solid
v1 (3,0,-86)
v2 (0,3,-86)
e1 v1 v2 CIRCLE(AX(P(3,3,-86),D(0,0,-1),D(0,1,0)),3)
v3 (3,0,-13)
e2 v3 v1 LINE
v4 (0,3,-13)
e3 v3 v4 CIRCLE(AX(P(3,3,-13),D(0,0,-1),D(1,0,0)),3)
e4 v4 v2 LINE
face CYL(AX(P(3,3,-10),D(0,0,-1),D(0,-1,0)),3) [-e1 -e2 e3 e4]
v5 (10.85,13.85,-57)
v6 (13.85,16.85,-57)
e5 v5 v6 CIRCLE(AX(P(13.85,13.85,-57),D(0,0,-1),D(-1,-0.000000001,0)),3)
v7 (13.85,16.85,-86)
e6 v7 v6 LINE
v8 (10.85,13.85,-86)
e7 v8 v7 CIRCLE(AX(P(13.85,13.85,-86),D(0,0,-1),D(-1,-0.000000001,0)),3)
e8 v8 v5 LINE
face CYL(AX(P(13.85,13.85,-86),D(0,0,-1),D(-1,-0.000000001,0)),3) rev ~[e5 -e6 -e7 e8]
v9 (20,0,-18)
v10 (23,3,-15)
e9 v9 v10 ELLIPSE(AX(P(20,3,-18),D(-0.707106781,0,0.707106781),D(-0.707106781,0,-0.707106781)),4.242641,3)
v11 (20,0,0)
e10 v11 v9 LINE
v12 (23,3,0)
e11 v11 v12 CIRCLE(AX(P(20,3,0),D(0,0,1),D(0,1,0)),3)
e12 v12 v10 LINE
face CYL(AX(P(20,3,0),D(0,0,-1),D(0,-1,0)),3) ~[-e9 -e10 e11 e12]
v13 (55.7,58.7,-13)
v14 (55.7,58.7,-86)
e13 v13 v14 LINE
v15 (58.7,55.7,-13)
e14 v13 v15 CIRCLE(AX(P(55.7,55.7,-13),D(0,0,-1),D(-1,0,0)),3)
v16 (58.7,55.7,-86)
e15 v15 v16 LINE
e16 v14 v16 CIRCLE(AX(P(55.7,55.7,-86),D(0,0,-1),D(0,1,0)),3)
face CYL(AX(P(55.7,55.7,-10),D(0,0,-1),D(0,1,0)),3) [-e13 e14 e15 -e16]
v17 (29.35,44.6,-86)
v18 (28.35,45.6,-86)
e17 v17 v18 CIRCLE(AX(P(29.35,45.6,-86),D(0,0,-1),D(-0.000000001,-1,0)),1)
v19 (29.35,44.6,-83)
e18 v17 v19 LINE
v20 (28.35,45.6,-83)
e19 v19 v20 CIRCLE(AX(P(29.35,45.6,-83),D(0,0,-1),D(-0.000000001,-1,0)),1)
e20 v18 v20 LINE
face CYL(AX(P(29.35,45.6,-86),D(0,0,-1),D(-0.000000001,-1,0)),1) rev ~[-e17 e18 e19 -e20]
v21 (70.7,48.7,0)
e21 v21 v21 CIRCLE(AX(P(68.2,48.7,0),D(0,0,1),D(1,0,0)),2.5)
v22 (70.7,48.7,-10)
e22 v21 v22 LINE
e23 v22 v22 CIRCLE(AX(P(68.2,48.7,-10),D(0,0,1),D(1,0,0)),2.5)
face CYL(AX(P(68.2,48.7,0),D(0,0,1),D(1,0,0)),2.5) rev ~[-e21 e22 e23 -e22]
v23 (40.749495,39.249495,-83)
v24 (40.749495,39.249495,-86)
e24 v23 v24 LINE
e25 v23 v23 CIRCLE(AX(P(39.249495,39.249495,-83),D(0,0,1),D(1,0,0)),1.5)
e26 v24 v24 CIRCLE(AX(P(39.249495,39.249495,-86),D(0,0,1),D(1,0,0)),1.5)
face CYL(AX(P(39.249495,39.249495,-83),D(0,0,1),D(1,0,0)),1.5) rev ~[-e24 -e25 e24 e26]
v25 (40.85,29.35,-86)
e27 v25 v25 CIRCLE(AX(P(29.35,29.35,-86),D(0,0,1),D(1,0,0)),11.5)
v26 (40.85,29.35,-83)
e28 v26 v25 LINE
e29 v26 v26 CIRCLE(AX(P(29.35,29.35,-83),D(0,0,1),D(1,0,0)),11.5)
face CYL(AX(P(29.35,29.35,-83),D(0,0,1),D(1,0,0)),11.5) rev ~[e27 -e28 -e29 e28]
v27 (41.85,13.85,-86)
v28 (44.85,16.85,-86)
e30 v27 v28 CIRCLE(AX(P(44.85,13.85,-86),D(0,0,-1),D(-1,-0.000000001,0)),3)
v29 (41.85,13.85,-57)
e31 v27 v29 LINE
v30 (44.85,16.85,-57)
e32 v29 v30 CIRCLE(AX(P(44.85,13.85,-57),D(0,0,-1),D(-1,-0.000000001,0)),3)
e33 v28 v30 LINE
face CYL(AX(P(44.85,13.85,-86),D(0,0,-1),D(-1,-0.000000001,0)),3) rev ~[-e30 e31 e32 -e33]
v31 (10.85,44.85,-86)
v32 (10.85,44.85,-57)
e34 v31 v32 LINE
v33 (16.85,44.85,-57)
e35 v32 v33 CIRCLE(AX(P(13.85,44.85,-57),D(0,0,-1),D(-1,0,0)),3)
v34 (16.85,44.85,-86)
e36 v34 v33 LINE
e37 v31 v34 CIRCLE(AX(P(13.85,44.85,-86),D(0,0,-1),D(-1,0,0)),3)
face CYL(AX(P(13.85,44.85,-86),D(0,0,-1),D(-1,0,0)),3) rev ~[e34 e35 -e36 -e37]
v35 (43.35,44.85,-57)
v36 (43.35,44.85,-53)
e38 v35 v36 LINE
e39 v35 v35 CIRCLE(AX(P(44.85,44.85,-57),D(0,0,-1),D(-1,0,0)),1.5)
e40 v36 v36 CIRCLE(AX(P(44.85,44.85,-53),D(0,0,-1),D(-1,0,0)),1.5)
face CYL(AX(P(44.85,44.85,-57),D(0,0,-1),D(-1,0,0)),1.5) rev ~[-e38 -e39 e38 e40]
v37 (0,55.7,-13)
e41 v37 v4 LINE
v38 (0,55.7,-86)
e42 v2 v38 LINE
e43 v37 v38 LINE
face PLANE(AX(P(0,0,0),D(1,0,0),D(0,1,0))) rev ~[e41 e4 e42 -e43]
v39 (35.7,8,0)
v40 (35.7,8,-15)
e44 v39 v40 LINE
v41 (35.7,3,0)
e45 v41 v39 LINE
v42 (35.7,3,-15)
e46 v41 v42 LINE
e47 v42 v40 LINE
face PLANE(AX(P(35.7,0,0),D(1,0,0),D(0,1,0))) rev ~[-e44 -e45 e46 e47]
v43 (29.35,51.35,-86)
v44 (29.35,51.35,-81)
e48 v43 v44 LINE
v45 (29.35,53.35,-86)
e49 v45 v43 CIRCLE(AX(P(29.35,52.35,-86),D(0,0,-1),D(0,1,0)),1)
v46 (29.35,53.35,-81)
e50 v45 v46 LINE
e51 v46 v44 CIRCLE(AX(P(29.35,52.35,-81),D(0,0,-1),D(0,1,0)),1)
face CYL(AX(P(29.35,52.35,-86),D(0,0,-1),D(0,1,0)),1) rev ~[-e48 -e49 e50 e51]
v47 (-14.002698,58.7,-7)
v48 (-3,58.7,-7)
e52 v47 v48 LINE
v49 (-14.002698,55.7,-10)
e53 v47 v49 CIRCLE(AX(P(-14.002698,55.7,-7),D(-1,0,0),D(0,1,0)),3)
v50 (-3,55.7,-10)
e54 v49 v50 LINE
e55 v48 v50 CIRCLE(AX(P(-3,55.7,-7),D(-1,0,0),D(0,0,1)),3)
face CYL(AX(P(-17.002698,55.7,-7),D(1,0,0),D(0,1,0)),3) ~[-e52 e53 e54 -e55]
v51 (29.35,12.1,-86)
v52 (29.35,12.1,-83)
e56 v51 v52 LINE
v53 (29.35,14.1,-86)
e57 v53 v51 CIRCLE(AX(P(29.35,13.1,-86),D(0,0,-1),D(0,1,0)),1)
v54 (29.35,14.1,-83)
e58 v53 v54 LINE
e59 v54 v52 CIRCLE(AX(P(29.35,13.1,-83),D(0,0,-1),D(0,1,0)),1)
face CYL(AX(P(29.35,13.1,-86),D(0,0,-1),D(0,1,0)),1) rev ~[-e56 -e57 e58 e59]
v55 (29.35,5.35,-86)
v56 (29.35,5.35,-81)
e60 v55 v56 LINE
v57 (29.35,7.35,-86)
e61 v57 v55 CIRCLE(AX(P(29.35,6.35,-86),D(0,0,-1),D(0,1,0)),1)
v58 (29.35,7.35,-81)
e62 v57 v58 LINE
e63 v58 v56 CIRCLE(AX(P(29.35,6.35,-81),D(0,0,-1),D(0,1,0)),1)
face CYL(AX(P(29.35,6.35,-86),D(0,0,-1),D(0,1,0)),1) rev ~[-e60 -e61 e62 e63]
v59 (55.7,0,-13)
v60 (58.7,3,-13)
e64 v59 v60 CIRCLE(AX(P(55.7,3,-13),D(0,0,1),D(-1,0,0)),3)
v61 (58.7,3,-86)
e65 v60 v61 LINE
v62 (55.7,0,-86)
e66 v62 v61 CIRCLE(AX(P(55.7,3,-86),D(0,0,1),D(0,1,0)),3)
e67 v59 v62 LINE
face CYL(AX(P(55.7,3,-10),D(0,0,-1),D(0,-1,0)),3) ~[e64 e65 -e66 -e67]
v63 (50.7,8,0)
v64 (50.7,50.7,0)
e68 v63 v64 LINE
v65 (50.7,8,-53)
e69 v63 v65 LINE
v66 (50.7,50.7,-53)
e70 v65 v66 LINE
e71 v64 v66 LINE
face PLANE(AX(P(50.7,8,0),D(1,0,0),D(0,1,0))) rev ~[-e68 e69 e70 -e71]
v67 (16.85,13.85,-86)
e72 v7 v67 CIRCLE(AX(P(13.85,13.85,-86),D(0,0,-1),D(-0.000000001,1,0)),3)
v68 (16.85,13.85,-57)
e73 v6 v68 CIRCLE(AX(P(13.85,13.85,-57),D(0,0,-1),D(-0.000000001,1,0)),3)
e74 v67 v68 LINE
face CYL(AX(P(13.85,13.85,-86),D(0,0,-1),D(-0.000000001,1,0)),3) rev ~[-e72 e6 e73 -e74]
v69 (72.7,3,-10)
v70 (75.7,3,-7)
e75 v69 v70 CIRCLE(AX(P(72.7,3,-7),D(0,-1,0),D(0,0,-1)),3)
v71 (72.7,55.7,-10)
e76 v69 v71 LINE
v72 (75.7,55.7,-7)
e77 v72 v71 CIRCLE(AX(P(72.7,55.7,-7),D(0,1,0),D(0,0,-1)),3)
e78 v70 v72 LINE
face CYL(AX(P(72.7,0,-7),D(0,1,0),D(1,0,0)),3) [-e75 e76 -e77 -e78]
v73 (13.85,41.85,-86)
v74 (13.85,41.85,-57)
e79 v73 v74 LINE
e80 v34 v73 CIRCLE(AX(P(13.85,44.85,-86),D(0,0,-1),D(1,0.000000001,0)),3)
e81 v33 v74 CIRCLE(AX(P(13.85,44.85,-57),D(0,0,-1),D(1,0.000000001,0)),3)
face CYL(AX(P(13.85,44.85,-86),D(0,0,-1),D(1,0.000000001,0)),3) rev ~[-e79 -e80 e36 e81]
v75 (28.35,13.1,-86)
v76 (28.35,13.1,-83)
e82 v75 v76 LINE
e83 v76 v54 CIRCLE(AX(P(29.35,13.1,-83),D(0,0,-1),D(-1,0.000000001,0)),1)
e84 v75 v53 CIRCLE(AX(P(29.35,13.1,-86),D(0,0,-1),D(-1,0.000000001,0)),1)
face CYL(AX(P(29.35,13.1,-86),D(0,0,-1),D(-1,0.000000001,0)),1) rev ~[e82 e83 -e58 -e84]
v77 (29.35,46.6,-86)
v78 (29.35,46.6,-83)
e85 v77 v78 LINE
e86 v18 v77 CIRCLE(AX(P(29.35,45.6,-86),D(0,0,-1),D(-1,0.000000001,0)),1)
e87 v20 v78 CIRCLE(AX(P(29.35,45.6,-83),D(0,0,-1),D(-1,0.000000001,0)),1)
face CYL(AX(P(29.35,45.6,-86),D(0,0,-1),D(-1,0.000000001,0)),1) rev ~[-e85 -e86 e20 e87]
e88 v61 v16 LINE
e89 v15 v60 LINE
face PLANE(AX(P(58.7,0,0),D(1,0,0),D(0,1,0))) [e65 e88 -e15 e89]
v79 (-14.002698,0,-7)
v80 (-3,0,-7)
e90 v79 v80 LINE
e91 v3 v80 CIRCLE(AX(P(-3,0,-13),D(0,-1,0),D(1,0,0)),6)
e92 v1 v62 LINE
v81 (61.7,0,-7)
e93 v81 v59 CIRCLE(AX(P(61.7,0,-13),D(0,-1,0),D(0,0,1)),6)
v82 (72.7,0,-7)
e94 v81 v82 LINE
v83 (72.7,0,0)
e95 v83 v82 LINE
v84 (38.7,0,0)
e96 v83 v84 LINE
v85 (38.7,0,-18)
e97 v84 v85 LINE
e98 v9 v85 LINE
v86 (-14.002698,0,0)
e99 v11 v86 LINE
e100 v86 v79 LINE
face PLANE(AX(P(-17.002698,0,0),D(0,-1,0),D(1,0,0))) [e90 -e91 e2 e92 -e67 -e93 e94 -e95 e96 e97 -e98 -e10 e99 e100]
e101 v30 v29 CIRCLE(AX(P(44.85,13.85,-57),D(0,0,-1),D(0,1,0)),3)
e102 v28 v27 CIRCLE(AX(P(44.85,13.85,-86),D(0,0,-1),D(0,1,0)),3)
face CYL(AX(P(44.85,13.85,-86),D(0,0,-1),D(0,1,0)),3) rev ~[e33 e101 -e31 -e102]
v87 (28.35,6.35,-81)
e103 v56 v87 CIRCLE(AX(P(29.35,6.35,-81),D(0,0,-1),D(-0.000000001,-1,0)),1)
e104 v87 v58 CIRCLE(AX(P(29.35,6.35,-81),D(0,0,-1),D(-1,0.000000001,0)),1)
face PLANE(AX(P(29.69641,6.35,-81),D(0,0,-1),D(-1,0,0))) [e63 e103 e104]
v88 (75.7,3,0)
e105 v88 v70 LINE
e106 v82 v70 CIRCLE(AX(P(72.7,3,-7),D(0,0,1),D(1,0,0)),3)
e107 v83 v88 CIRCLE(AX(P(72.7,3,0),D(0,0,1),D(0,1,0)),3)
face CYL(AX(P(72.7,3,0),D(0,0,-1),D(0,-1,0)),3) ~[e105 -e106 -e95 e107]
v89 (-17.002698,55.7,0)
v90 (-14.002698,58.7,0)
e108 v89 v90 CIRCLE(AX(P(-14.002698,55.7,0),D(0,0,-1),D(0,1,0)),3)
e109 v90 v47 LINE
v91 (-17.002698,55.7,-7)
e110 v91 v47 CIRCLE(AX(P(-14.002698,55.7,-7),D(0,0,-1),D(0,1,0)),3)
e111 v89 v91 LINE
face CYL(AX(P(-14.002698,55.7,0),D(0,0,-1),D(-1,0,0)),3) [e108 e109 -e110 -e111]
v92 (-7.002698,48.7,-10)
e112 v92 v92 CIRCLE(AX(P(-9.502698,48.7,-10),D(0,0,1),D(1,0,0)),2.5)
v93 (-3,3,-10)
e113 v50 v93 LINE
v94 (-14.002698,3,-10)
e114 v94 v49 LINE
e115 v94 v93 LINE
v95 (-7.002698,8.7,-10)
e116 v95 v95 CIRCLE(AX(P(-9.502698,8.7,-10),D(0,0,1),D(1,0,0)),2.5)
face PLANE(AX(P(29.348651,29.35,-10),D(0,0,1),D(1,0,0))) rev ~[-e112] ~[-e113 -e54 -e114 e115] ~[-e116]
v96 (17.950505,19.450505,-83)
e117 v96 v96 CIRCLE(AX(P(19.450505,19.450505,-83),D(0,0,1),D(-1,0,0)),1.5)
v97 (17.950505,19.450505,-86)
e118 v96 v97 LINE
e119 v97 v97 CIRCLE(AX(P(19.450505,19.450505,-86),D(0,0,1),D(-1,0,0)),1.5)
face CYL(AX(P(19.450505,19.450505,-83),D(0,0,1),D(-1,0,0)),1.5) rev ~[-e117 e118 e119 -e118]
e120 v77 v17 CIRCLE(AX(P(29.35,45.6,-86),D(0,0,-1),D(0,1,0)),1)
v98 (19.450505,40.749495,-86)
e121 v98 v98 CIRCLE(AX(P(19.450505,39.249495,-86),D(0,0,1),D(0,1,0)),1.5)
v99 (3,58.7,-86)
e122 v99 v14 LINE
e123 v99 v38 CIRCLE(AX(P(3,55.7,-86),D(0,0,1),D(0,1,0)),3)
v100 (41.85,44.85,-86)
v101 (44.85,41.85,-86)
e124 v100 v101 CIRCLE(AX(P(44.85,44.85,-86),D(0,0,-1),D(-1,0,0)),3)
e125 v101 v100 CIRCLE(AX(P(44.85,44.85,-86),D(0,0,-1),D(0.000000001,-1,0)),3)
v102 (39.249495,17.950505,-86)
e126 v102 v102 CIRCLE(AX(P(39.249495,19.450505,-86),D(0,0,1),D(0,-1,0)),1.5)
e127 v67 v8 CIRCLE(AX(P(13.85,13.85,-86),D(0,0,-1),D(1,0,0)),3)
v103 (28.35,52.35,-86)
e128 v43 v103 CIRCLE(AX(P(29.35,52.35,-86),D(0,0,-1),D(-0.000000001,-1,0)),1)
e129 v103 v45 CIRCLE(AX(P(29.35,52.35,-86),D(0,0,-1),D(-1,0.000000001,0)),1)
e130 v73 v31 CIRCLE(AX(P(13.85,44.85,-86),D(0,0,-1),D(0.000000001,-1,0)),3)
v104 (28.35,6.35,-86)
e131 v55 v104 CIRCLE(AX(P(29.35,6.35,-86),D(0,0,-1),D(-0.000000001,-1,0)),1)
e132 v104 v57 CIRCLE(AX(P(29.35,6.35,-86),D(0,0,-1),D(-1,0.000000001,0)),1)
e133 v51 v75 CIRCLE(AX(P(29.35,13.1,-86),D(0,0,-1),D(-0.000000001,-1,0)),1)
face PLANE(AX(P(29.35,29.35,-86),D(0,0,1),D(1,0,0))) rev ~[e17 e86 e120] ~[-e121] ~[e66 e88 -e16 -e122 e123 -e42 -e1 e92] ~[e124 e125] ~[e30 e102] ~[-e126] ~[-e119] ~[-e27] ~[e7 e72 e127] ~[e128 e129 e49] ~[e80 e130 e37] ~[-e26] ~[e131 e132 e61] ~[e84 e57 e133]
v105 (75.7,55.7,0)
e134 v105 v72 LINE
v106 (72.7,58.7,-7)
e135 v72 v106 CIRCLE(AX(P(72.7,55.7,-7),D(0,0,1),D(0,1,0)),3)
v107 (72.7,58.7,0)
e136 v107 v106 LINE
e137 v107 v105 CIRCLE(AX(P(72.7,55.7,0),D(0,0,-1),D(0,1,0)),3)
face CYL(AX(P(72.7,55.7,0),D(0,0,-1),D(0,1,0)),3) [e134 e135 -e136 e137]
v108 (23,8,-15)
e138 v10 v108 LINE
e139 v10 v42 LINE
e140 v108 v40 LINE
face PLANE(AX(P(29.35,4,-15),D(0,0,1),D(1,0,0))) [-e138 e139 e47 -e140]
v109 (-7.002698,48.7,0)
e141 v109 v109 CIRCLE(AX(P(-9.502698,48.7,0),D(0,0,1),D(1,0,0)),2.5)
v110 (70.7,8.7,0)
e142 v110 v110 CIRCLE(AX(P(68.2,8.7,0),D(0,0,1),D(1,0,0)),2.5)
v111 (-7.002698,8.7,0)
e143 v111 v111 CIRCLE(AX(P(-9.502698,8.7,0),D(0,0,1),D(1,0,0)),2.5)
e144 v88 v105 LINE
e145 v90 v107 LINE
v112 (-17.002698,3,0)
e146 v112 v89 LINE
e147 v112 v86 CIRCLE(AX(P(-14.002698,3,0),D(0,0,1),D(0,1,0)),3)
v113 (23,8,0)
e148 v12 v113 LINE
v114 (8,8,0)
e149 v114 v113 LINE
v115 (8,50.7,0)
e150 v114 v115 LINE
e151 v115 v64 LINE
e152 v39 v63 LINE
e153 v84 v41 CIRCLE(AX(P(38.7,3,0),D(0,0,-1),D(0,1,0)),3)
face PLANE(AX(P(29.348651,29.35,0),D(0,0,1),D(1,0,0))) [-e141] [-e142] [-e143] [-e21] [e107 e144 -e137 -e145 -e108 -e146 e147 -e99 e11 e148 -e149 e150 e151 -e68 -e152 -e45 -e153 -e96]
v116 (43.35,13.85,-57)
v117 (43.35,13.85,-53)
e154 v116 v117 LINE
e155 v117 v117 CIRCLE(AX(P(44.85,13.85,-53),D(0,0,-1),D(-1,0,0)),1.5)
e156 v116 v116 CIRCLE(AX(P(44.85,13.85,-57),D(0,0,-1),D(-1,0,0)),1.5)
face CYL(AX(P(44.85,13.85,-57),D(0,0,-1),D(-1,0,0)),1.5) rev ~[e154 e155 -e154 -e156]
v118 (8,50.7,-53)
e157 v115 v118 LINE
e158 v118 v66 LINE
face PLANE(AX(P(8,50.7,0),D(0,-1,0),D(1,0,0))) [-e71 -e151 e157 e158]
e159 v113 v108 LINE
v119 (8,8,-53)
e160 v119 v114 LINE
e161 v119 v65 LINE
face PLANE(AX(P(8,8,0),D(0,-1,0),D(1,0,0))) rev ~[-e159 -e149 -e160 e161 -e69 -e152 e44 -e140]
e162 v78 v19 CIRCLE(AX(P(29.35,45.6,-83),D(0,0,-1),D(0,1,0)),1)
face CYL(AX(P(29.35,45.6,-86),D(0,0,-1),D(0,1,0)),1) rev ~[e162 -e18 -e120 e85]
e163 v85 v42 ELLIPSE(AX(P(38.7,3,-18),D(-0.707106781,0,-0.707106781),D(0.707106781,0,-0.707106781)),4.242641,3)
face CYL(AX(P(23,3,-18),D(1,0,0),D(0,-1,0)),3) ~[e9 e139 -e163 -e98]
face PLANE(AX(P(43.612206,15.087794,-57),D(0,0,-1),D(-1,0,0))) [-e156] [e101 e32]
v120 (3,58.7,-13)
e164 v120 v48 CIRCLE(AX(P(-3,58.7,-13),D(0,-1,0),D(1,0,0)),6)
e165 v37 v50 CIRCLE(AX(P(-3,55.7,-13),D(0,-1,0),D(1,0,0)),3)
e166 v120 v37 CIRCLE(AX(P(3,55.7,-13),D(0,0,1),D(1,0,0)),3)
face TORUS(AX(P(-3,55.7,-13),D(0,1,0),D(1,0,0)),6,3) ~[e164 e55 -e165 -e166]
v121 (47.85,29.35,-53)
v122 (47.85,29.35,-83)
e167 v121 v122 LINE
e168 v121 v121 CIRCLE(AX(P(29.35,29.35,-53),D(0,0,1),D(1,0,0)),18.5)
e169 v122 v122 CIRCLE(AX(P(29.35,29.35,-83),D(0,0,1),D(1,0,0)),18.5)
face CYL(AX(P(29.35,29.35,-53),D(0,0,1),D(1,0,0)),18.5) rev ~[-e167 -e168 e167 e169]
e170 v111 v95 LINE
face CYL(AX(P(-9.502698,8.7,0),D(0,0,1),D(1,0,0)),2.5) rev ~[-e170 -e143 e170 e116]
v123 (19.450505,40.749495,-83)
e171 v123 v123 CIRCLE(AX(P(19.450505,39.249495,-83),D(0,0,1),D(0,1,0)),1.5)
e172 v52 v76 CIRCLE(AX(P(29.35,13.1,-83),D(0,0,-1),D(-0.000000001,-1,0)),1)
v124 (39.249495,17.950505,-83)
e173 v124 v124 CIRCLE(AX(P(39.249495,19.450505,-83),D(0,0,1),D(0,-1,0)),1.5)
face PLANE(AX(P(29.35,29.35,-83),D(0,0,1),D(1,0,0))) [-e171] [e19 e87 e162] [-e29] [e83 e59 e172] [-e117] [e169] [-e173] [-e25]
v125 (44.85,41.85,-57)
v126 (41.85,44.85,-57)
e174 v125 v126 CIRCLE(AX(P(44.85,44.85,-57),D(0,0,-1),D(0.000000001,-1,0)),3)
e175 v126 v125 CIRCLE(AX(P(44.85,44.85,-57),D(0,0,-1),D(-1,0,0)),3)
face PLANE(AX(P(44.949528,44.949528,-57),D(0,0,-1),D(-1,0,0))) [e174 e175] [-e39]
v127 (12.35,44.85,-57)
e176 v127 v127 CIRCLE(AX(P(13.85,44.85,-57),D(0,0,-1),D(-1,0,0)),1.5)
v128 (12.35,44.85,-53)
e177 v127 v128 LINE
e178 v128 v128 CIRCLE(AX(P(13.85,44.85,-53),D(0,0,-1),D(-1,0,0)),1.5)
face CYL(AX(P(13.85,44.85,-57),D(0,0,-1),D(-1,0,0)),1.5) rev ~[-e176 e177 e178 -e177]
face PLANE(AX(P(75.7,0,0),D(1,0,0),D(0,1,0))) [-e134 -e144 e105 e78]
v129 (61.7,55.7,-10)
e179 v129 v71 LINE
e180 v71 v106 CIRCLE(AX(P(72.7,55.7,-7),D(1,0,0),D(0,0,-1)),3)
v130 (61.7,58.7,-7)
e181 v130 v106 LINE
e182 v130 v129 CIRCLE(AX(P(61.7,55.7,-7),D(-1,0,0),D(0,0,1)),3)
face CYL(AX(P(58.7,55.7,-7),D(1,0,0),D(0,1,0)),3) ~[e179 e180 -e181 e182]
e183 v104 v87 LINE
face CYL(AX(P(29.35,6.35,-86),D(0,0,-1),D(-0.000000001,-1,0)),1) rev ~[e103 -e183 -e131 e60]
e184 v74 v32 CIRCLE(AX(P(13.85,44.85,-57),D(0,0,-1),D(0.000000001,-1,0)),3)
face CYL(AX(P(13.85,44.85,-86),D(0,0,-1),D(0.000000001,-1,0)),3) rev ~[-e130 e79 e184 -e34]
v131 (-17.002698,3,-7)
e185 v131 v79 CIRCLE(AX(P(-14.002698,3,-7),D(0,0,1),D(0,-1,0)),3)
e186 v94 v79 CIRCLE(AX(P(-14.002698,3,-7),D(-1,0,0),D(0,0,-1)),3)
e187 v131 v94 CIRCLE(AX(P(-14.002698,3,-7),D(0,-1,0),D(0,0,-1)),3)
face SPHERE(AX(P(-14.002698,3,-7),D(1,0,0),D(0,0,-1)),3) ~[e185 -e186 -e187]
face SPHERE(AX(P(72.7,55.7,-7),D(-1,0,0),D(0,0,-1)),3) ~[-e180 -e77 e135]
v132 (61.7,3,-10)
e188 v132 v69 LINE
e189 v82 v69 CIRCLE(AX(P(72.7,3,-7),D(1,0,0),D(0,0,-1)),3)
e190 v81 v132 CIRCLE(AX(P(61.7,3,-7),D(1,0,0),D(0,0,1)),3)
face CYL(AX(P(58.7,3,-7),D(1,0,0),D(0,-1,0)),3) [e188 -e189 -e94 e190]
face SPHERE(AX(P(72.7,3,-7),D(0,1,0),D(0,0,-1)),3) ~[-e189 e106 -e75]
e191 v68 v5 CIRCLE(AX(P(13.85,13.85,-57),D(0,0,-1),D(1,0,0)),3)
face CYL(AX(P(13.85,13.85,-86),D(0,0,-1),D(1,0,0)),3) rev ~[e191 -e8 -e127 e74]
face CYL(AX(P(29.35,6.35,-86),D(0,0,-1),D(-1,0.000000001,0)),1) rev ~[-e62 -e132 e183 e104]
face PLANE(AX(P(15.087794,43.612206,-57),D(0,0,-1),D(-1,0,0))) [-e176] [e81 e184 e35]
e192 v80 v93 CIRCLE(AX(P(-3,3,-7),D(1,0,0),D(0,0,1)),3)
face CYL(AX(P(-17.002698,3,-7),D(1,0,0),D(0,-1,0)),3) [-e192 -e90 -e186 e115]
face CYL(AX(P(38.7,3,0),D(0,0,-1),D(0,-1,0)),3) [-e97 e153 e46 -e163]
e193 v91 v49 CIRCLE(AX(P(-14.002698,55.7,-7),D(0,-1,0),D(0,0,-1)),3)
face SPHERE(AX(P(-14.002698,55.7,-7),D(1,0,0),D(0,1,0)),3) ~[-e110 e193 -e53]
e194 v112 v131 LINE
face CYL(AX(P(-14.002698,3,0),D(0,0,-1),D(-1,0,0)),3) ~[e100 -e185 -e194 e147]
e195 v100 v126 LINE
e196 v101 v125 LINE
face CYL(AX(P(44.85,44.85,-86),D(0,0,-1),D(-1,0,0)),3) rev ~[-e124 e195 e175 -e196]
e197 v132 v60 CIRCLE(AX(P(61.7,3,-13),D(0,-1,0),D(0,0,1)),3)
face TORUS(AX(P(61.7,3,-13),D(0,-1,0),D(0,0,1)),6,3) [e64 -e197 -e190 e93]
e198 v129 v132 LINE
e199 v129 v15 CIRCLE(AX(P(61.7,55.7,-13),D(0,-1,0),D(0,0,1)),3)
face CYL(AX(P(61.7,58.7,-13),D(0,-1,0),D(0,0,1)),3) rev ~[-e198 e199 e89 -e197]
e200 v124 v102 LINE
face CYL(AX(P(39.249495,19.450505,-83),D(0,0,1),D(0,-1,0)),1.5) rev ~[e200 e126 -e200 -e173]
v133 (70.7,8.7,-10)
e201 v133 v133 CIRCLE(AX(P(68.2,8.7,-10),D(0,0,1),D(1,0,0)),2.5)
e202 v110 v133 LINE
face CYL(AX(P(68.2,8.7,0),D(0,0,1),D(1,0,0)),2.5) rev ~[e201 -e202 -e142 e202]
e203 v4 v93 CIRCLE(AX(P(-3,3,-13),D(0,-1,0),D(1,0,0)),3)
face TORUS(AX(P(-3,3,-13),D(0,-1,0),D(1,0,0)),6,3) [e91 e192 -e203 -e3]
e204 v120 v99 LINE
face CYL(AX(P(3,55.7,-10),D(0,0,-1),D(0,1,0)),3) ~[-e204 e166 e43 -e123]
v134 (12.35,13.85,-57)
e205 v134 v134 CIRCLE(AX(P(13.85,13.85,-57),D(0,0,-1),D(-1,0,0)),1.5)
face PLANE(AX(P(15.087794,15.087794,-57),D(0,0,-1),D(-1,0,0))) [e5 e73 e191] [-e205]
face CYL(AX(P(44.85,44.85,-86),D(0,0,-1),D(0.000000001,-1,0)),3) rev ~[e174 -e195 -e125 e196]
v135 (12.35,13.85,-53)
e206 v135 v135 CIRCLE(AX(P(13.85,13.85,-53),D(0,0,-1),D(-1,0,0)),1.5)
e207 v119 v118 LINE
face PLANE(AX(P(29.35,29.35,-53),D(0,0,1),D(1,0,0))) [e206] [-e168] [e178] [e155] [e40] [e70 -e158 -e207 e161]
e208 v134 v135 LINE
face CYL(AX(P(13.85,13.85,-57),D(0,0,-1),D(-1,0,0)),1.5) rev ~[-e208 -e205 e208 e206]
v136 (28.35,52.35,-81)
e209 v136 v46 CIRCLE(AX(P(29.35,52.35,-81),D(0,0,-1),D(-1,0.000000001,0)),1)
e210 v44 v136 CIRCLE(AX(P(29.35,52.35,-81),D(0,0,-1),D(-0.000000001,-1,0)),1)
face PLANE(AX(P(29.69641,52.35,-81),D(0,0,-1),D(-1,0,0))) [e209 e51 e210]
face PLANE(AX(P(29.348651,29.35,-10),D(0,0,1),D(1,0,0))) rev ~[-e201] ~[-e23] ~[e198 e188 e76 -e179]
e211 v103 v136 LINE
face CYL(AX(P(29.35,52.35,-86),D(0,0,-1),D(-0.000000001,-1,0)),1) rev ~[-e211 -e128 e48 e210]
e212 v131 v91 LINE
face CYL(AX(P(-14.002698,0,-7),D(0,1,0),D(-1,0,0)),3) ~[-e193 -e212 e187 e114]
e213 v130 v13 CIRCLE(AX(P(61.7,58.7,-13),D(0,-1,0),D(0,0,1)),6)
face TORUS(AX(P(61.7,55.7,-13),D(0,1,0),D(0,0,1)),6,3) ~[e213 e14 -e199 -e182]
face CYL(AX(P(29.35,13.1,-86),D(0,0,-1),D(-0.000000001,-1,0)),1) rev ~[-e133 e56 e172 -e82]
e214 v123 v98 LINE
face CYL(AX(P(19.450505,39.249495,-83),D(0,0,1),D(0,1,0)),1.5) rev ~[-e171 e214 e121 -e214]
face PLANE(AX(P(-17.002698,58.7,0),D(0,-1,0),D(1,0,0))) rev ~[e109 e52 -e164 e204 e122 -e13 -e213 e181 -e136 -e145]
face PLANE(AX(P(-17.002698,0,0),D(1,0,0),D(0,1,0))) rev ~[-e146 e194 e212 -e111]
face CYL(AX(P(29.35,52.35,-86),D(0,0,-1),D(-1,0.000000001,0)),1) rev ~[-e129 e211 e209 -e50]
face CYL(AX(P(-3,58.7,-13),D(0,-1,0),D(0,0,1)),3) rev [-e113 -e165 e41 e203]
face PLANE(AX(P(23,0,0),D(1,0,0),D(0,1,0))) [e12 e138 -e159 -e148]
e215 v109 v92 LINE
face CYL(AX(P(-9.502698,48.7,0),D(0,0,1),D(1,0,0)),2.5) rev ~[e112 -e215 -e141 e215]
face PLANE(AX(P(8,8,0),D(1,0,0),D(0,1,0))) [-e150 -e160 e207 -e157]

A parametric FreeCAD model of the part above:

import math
import FreeCAD as App
import Part
import Sketcher


def edges_at(feature, points):
    """Names of the edges that pass closest to the given points."""
    edges = feature.Shape.Edges
    near = lambda p: min(range(len(edges)), key=lambda i: edges[i].distToShape(Part.Vertex(*p))[0])
    return sorted({f"Edge{near(p) + 1}" for p in points})


def add_polygon(sketch, points):
    """Adds a closed chain of lines whose ends are joined by coincident constraints."""
    first, n = sketch.GeometryCount, len(points)
    for a, b in zip(points, points[1:] + points[:1]):
        sketch.addGeometry(Part.LineSegment(App.Vector(*a, 0), App.Vector(*b, 0)), False)
    for i in range(n):
        sketch.addConstraint(Sketcher.Constraint("Coincident", first + i, 2, first + (i + 1) % n, 1))

doc = App.newDocument("Part")
body = doc.addObject("PartDesign::Body", "Body")

# Sketch on XY plane
sketch1 = doc.addObject("Sketcher::SketchObject", "Sketch")
body.addObject(sketch1)
sketch1.AttachmentSupport = (doc.XY_Plane, [""])
sketch1.MapMode = "FlatFace"
add_polygon(sketch1, [(0, 58.7), (0, 0), (58.7, 0), (58.7, 58.7)])  # lines 0-3
sketch1.addConstraint([
    Sketcher.Constraint("Vertical", 0),
    Sketcher.Constraint("Horizontal", 1),
    Sketcher.Constraint("Vertical", 2),
    Sketcher.Constraint("Horizontal", 3),
    Sketcher.Constraint("Coincident", 0, 2, -1, 1),
    Sketcher.Constraint("Equal", 3, 0),
    Sketcher.Constraint("DistanceX", 1, 1, 1, 2, 58.7),
])
pad1 = doc.addObject("PartDesign::Pad", "Pad")
body.addObject(pad1)
pad1.Profile = sketch1
pad1.Length = 86
pad1.Reversed = True

# Sketch on XY plane
sketch2 = doc.addObject("Sketcher::SketchObject", "Sketch001")
body.addObject(sketch2)
sketch2.AttachmentSupport = (doc.XY_Plane, [""])
sketch2.MapMode = "FlatFace"
add_polygon(sketch2, [(8, 50.7), (8, 8), (50.7, 8), (50.7, 50.7)])  # lines 0-3
sketch2.addConstraint([
    Sketcher.Constraint("Vertical", 0),
    Sketcher.Constraint("Horizontal", 1),
    Sketcher.Constraint("Vertical", 2),
    Sketcher.Constraint("Horizontal", 3),
    Sketcher.Constraint("Equal", 3, 0),
    Sketcher.Constraint("DistanceX", 1, 1, 1, 2, 42.7),
    Sketcher.Constraint("DistanceX", -1, 1, 0, 2, 8.0),
    Sketcher.Constraint("DistanceY", -1, 1, 0, 2, 8.0),
])
pocket1 = doc.addObject("PartDesign::Pocket", "Pocket")
body.addObject(pocket1)
pocket1.Profile = sketch2
pocket1.Length = 53

# Sketch on XY plane
sketch3 = doc.addObject("Sketcher::SketchObject", "Sketch002")
body.addObject(sketch3)
sketch3.AttachmentSupport = (doc.XY_Plane, [""])
sketch3.MapMode = "FlatFace"
sketch3.AttachmentOffset = App.Placement(App.Vector(0, 0, -53), App.Rotation())
sketch3.addGeometry(Part.Circle(App.Vector(29.35, 29.35, 0), App.Vector(0, 0, 1), 18.5), False)
sketch3.addConstraint([
    Sketcher.Constraint("Diameter", 0, 37.0),
    Sketcher.Constraint("DistanceX", -1, 1, 0, 3, 29.35),
    Sketcher.Constraint("DistanceY", -1, 1, 0, 3, 29.35),
])
pocket2 = doc.addObject("PartDesign::Pocket", "Pocket001")
body.addObject(pocket2)
pocket2.Profile = sketch3
pocket2.Length = 30

# Sketch on XY plane
sketch4 = doc.addObject("Sketcher::SketchObject", "Sketch003")
body.addObject(sketch4)
sketch4.AttachmentSupport = (doc.XY_Plane, [""])
sketch4.MapMode = "FlatFace"
sketch4.AttachmentOffset = App.Placement(App.Vector(0, 0, -83), App.Rotation())
sketch4.addGeometry(Part.Circle(App.Vector(29.35, 29.35, 0), App.Vector(0, 0, 1), 11.5), False)
sketch4.addConstraint([
    Sketcher.Constraint("Diameter", 0, 23.0),
    Sketcher.Constraint("DistanceX", -1, 1, 0, 3, 29.35),
    Sketcher.Constraint("DistanceY", -1, 1, 0, 3, 29.35),
])
pocket3 = doc.addObject("PartDesign::Pocket", "Pocket002")
body.addObject(pocket3)
pocket3.Profile = sketch4
pocket3.Type = "ThroughAll"

# Sketch on XY plane
sketch5 = doc.addObject("Sketcher::SketchObject", "Sketch004")
body.addObject(sketch5)
sketch5.AttachmentSupport = (doc.XY_Plane, [""])
sketch5.MapMode = "FlatFace"
sketch5.AttachmentOffset = App.Placement(App.Vector(0, 0, -83), App.Rotation())
sketch5.addGeometry(Part.Circle(App.Vector(39.249495, 39.249495, 0), App.Vector(0, 0, 1), 1.5), False)
sketch5.addConstraint([
    Sketcher.Constraint("Diameter", 0, 3.0),
    Sketcher.Constraint("DistanceX", -1, 1, 0, 3, 39.249495),
    Sketcher.Constraint("DistanceY", -1, 1, 0, 3, 39.249495),
])
pocket4 = doc.addObject("PartDesign::Pocket", "Pocket003")
body.addObject(pocket4)
pocket4.Profile = sketch5
pocket4.Type = "ThroughAll"
doc.recompute()

datumline = doc.addObject("PartDesign::Line", "DatumLine")
body.addObject(datumline)
datumline.Placement = App.Placement(App.Vector(29.35, 29.35, 0), App.Rotation(App.Vector(0, 0, 1), App.Vector(0, 0, 1)))
polarpattern = doc.addObject("PartDesign::PolarPattern", "PolarPattern")
body.addObject(polarpattern)
polarpattern.Originals = [pocket4]
polarpattern.Axis = (datumline, [""])
polarpattern.Angle = 360
polarpattern.Occurrences = 4
body.Tip = polarpattern

# Sketch on XY plane
sketch6 = doc.addObject("Sketcher::SketchObject", "Sketch005")
body.addObject(sketch6)
sketch6.AttachmentSupport = (doc.XY_Plane, [""])
sketch6.MapMode = "FlatFace"
sketch6.AttachmentOffset = App.Placement(App.Vector(0, 0, -86), App.Rotation())
sketch6.addGeometry([
    Part.ArcOfCircle(Part.Circle(App.Vector(29.35, 52.35, 0), App.Vector(0, 0, 1), 1), math.radians(-90), math.radians(90)),  # 0
    Part.ArcOfCircle(Part.Circle(App.Vector(29.35, 52.35, 0), App.Vector(0, 0, 1), 1), math.radians(-180), math.radians(-90)),  # 1
    Part.ArcOfCircle(Part.Circle(App.Vector(29.35, 52.35, 0), App.Vector(0, 0, 1), 1), math.radians(90), math.radians(180)),  # 2
    Part.ArcOfCircle(Part.Circle(App.Vector(29.35, 45.6, 0), App.Vector(0, 0, 1), 1), math.radians(-90), math.radians(90)),  # 3
    Part.ArcOfCircle(Part.Circle(App.Vector(29.35, 45.6, 0), App.Vector(0, 0, 1), 1), math.radians(-180), math.radians(-90)),  # 4
    Part.ArcOfCircle(Part.Circle(App.Vector(29.35, 45.6, 0), App.Vector(0, 0, 1), 1), math.radians(90), math.radians(180)),  # 5
    Part.ArcOfCircle(Part.Circle(App.Vector(29.35, 13.1, 0), App.Vector(0, 0, 1), 1), math.radians(-90), math.radians(90)),  # 6
    Part.ArcOfCircle(Part.Circle(App.Vector(29.35, 13.1, 0), App.Vector(0, 0, 1), 1), math.radians(-180), math.radians(-90)),  # 7
    Part.ArcOfCircle(Part.Circle(App.Vector(29.35, 13.1, 0), App.Vector(0, 0, 1), 1), math.radians(90), math.radians(180)),  # 8
    Part.ArcOfCircle(Part.Circle(App.Vector(29.35, 6.35, 0), App.Vector(0, 0, 1), 1), math.radians(-90), math.radians(90)),  # 9
    Part.ArcOfCircle(Part.Circle(App.Vector(29.35, 6.35, 0), App.Vector(0, 0, 1), 1), math.radians(-180), math.radians(-90)),  # 10
    Part.ArcOfCircle(Part.Circle(App.Vector(29.35, 6.35, 0), App.Vector(0, 0, 1), 1), math.radians(90), math.radians(180)),  # 11
], False)
sketch6.addConstraint([
    Sketcher.Constraint("Tangent", 0, 1, 1, 2),
    Sketcher.Constraint("Tangent", 1, 1, 2, 2),
    Sketcher.Constraint("Tangent", 2, 1, 0, 2),
    Sketcher.Constraint("Tangent", 3, 1, 4, 2),
    Sketcher.Constraint("Tangent", 4, 1, 5, 2),
    Sketcher.Constraint("Tangent", 5, 1, 3, 2),
    Sketcher.Constraint("Tangent", 6, 1, 7, 2),
    Sketcher.Constraint("Tangent", 7, 1, 8, 2),
    Sketcher.Constraint("Tangent", 8, 1, 6, 2),
    Sketcher.Constraint("Tangent", 9, 1, 10, 2),
    Sketcher.Constraint("Tangent", 10, 1, 11, 2),
    Sketcher.Constraint("Tangent", 11, 1, 9, 2),
    Sketcher.Constraint("Equal", 2, 3),
    Sketcher.Constraint("Equal", 5, 6),
    Sketcher.Constraint("Equal", 8, 9),
    Sketcher.Constraint("Horizontal", 2, 3, 1, 1),
    Sketcher.Constraint("Horizontal", 5, 3, 4, 1),
    Sketcher.Constraint("Horizontal", 8, 3, 7, 1),
    Sketcher.Constraint("Horizontal", 11, 3, 10, 1),
    Sketcher.Constraint("Vertical", 2, 3, 3, 3),
    Sketcher.Constraint("Vertical", 5, 3, 6, 3),
    Sketcher.Constraint("Vertical", 8, 3, 9, 3),
    Sketcher.Constraint("Vertical", 11, 3, 0, 1),
    Sketcher.Constraint("Vertical", 0, 1, 2, 1),
    Sketcher.Constraint("Vertical", 2, 1, 3, 1),
    Sketcher.Constraint("Vertical", 3, 1, 5, 1),
    Sketcher.Constraint("Vertical", 5, 1, 6, 1),
    Sketcher.Constraint("Vertical", 6, 1, 8, 1),
    Sketcher.Constraint("Vertical", 8, 1, 9, 1),
    Sketcher.Constraint("Vertical", 9, 1, 11, 1),
    Sketcher.Constraint("Radius", 0, 1.0),
    Sketcher.Constraint("DistanceY", -1, 1, 3, 3, 45.6),
    Sketcher.Constraint("DistanceY", -1, 1, 6, 3, 13.1),
    Sketcher.Constraint("DistanceX", -1, 1, 0, 3, 29.35),
    Sketcher.Constraint("DistanceY", -1, 1, 0, 3, 52.35),
    Sketcher.Constraint("DistanceY", -1, 1, 9, 3, 6.35),
])
pocket5 = doc.addObject("PartDesign::Pocket", "Pocket004")
body.addObject(pocket5)
pocket5.Profile = sketch6
pocket5.Length = 5
pocket5.Reversed = True

# Sketch on XY plane
sketch7 = doc.addObject("Sketcher::SketchObject", "Sketch006")
body.addObject(sketch7)
sketch7.AttachmentSupport = (doc.XY_Plane, [""])
sketch7.MapMode = "FlatFace"
add_polygon(sketch7, [(-17.002698, 58.7), (-17.002698, 0), (75.7, 0), (75.7, 58.7)])  # lines 0-3
sketch7.addGeometry(Part.Circle(App.Vector(-9.502698, 8.7, 0), App.Vector(0, 0, 1), 2.5), False)  # 4
sketch7.addGeometry(Part.Circle(App.Vector(68.2, 8.7, 0), App.Vector(0, 0, 1), 2.5), False)  # 5
sketch7.addGeometry(Part.Circle(App.Vector(-9.502698, 48.7, 0), App.Vector(0, 0, 1), 2.5), False)  # 6
add_polygon(sketch7, [(50.7, 8), (8, 8), (8, 50.7), (50.7, 50.7)])  # lines 7-10
sketch7.addGeometry(Part.Circle(App.Vector(68.2, 48.7, 0), App.Vector(0, 0, 1), 2.5), False)  # 11
sketch7.addConstraint([
    Sketcher.Constraint("Vertical", 0),
    Sketcher.Constraint("Horizontal", 1),
    Sketcher.Constraint("Vertical", 2),
    Sketcher.Constraint("Horizontal", 3),
    Sketcher.Constraint("Horizontal", 7),
    Sketcher.Constraint("Vertical", 8),
    Sketcher.Constraint("Horizontal", 9),
    Sketcher.Constraint("Vertical", 10),
    Sketcher.Constraint("Equal", 4, 5),
    Sketcher.Constraint("Equal", 5, 6),
    Sketcher.Constraint("Equal", 6, 11),
    Sketcher.Constraint("PointOnObject", 0, 2, -1),
    Sketcher.Constraint("Horizontal", 4, 3, 5, 3),
    Sketcher.Constraint("Horizontal", 6, 3, 11, 3),
    Sketcher.Constraint("Vertical", 4, 3, 6, 3),
    Sketcher.Constraint("Vertical", 5, 3, 11, 3),
    Sketcher.Constraint("Equal", 9, 8),
    Sketcher.Constraint("Diameter", 4, 5.0),
    Sketcher.Constraint("DistanceX", 7, 2, 7, 1, 42.7),
    Sketcher.Constraint("DistanceY", 0, 2, 0, 1, 58.7),
    Sketcher.Constraint("DistanceX", -1, 1, 7, 2, 8.0),
    Sketcher.Constraint("DistanceY", -1, 1, 7, 2, 8.0),
    Sketcher.Constraint("DistanceY", 4, 3, 6, 3, 40.0),
    Sketcher.Constraint("DistanceY", 11, 3, 2, 2, 10.0),
    Sketcher.Constraint("DistanceX", 9, 2, 2, 2, 25.0),
    Sketcher.Constraint("DistanceX", -1, 1, 5, 3, 68.2),
    Sketcher.Constraint("DistanceX", 0, 2, 4, 3, 7.5),
    Sketcher.Constraint("DistanceX", 1, 1, 1, 2, 92.702698),
])
pad2 = doc.addObject("PartDesign::Pad", "Pad001")
body.addObject(pad2)
pad2.Profile = sketch7
pad2.Length = 10
pad2.Reversed = True

# Sketch on XY plane
sketch8 = doc.addObject("Sketcher::SketchObject", "Sketch007")
body.addObject(sketch8)
sketch8.AttachmentSupport = (doc.XY_Plane, [""])
sketch8.MapMode = "FlatFace"
add_polygon(sketch8, [(23, 8), (23, 0), (35.7, 0), (35.7, 8)])  # lines 0-3
sketch8.addConstraint([
    Sketcher.Constraint("Vertical", 0),
    Sketcher.Constraint("Horizontal", 1),
    Sketcher.Constraint("Vertical", 2),
    Sketcher.Constraint("Horizontal", 3),
    Sketcher.Constraint("PointOnObject", 0, 2, -1),
    Sketcher.Constraint("DistanceY", 0, 2, 0, 1, 8.0),
    Sketcher.Constraint("DistanceX", 1, 1, 1, 2, 12.7),
    Sketcher.Constraint("DistanceX", -1, 1, 0, 2, 23.0),
])
pocket6 = doc.addObject("PartDesign::Pocket", "Pocket005")
body.addObject(pocket6)
pocket6.Profile = sketch8
pocket6.Length = 15
doc.recompute()

fillet = doc.addObject("PartDesign::Fillet", "Fillet")
body.addObject(fillet)
fillet.Base = (pocket6, edges_at(pocket6, [
    (0, 0, -48),
    (23, 0, -7.5),
    (29.35, 0, -15),
    (35.7, 0, -7.5),
    (-8.501, 58.7, -10),
    (-17.003, 58.7, -5),
    (-8.501, 0, -10),
    (0, 29.35, -10),
    (58.7, 29.35, -10),
    (-17.003, 29.35, -10),
    (0, 58.7, -48),
    (-17.003, 0, -5),
    (67.2, 58.7, -10),
    (75.7, 29.35, -10),
    (58.7, 58.7, -48),
    (75.7, 58.7, -5),
    (67.2, 0, -10),
    (75.7, 0, -5),
    (58.7, 0, -48),
]))
fillet.Radius = 3

# Sketch on XY plane
sketch9 = doc.addObject("Sketcher::SketchObject", "Sketch008")
body.addObject(sketch9)
sketch9.AttachmentSupport = (doc.XY_Plane, [""])
sketch9.MapMode = "FlatFace"
sketch9.AttachmentOffset = App.Placement(App.Vector(0, 0, -86), App.Rotation())
sketch9.addGeometry([
    Part.ArcOfCircle(Part.Circle(App.Vector(44.85, 44.85, 0), App.Vector(0, 0, 1), 3), math.radians(-90), math.radians(180)),  # 0
    Part.ArcOfCircle(Part.Circle(App.Vector(44.85, 44.85, 0), App.Vector(0, 0, 1), 3), math.radians(180), math.radians(270)),  # 1
    Part.ArcOfCircle(Part.Circle(App.Vector(13.85, 44.85, 0), App.Vector(0, 0, 1), 3), math.radians(-90), math.radians(0)),  # 2
    Part.ArcOfCircle(Part.Circle(App.Vector(13.85, 44.85, 0), App.Vector(0, 0, 1), 3), math.radians(180), math.radians(270)),  # 3
    Part.ArcOfCircle(Part.Circle(App.Vector(13.85, 44.85, 0), App.Vector(0, 0, 1), 3), math.radians(0), math.radians(180)),  # 4
    Part.ArcOfCircle(Part.Circle(App.Vector(13.85, 13.85, 0), App.Vector(0, 0, 1), 3), math.radians(0), math.radians(90)),  # 5
    Part.ArcOfCircle(Part.Circle(App.Vector(13.85, 13.85, 0), App.Vector(0, 0, 1), 3), math.radians(180), math.radians(360)),  # 6
    Part.ArcOfCircle(Part.Circle(App.Vector(13.85, 13.85, 0), App.Vector(0, 0, 1), 3), math.radians(90), math.radians(180)),  # 7
    Part.ArcOfCircle(Part.Circle(App.Vector(44.85, 13.85, 0), App.Vector(0, 0, 1), 3), math.radians(90), math.radians(180)),  # 8
    Part.ArcOfCircle(Part.Circle(App.Vector(44.85, 13.85, 0), App.Vector(0, 0, 1), 3), math.radians(180), math.radians(450)),  # 9
], False)
sketch9.addConstraint([
    Sketcher.Constraint("Tangent", 0, 1, 1, 2),
    Sketcher.Constraint("Coincident", 1, 1, 0, 2),
    Sketcher.Constraint("Tangent", 2, 1, 3, 2),
    Sketcher.Constraint("Tangent", 3, 1, 4, 2),
    Sketcher.Constraint("Tangent", 4, 1, 2, 2),
    Sketcher.Constraint("Tangent", 5, 1, 6, 2),
    Sketcher.Constraint("Tangent", 6, 1, 7, 2),
    Sketcher.Constraint("Tangent", 7, 1, 5, 2),
    Sketcher.Constraint("Tangent", 8, 1, 9, 2),
    Sketcher.Constraint("Coincident", 9, 1, 8, 2),
    Sketcher.Constraint("Equal", 1, 2),
    Sketcher.Constraint("Equal", 4, 5),
    Sketcher.Constraint("Equal", 7, 8),
    Sketcher.Constraint("Horizontal", 1, 3, 2, 3),
    Sketcher.Constraint("Horizontal", 7, 3, 8, 3),
    Sketcher.Constraint("Horizontal", 4, 3, 1, 1),
    Sketcher.Constraint("Horizontal", 1, 1, 3, 1),
    Sketcher.Constraint("Horizontal", 3, 1, 4, 1),
    Sketcher.Constraint("Horizontal", 9, 3, 5, 1),
    Sketcher.Constraint("Horizontal", 5, 1, 6, 1),
    Sketcher.Constraint("Horizontal", 6, 1, 9, 1),
    Sketcher.Constraint("Vertical", 4, 3, 5, 3),
    Sketcher.Constraint("Vertical", 1, 3, 8, 3),
    Sketcher.Constraint("Vertical", 9, 3, 0, 1),
    Sketcher.Constraint("Vertical", 7, 3, 2, 1),
    Sketcher.Constraint("Vertical", 2, 1, 7, 1),
    Sketcher.Constraint("Vertical", 0, 1, 8, 1),
    Sketcher.Constraint("Radius", 0, 3.0),
    Sketcher.Constraint("DistanceX", 2, 3, 1, 3, 31.0),
    Sketcher.Constraint("DistanceY", 5, 3, 2, 3, 31.0),
    Sketcher.Constraint("DistanceX", -1, 1, 0, 3, 44.85),
    Sketcher.Constraint("DistanceY", -1, 1, 0, 3, 44.85),
])
pocket7 = doc.addObject("PartDesign::Pocket", "Pocket006")
body.addObject(pocket7)
pocket7.Profile = sketch9
pocket7.Length = 29
pocket7.Reversed = True

# Sketch on XY plane
sketch10 = doc.addObject("Sketcher::SketchObject", "Sketch009")
body.addObject(sketch10)
sketch10.AttachmentSupport = (doc.XY_Plane, [""])
sketch10.MapMode = "FlatFace"
sketch10.AttachmentOffset = App.Placement(App.Vector(0, 0, -57), App.Rotation())
sketch10.addGeometry([
    Part.Circle(App.Vector(44.85, 44.85, 0), App.Vector(0, 0, 1), 1.5),
    Part.Circle(App.Vector(13.85, 44.85, 0), App.Vector(0, 0, 1), 1.5),
    Part.Circle(App.Vector(13.85, 13.85, 0), App.Vector(0, 0, 1), 1.5),
    Part.Circle(App.Vector(44.85, 13.85, 0), App.Vector(0, 0, 1), 1.5),
], False)
sketch10.addConstraint([
    Sketcher.Constraint("Equal", 0, 1),
    Sketcher.Constraint("Equal", 1, 2),
    Sketcher.Constraint("Equal", 2, 3),
    Sketcher.Constraint("Horizontal", 0, 3, 1, 3),
    Sketcher.Constraint("Horizontal", 2, 3, 3, 3),
    Sketcher.Constraint("Vertical", 1, 3, 2, 3),
    Sketcher.Constraint("Vertical", 0, 3, 3, 3),
    Sketcher.Constraint("Diameter", 0, 3.0),
    Sketcher.Constraint("DistanceX", 1, 3, 0, 3, 31.0),
    Sketcher.Constraint("DistanceY", 2, 3, 1, 3, 31.0),
    Sketcher.Constraint("DistanceX", -1, 1, 0, 3, 44.85),
    Sketcher.Constraint("DistanceY", -1, 1, 0, 3, 44.85),
])
pocket8 = doc.addObject("PartDesign::Pocket", "Pocket007")
body.addObject(pocket8)
pocket8.Profile = sketch10
pocket8.Length = 4
pocket8.Reversed = True

doc.recompute()
